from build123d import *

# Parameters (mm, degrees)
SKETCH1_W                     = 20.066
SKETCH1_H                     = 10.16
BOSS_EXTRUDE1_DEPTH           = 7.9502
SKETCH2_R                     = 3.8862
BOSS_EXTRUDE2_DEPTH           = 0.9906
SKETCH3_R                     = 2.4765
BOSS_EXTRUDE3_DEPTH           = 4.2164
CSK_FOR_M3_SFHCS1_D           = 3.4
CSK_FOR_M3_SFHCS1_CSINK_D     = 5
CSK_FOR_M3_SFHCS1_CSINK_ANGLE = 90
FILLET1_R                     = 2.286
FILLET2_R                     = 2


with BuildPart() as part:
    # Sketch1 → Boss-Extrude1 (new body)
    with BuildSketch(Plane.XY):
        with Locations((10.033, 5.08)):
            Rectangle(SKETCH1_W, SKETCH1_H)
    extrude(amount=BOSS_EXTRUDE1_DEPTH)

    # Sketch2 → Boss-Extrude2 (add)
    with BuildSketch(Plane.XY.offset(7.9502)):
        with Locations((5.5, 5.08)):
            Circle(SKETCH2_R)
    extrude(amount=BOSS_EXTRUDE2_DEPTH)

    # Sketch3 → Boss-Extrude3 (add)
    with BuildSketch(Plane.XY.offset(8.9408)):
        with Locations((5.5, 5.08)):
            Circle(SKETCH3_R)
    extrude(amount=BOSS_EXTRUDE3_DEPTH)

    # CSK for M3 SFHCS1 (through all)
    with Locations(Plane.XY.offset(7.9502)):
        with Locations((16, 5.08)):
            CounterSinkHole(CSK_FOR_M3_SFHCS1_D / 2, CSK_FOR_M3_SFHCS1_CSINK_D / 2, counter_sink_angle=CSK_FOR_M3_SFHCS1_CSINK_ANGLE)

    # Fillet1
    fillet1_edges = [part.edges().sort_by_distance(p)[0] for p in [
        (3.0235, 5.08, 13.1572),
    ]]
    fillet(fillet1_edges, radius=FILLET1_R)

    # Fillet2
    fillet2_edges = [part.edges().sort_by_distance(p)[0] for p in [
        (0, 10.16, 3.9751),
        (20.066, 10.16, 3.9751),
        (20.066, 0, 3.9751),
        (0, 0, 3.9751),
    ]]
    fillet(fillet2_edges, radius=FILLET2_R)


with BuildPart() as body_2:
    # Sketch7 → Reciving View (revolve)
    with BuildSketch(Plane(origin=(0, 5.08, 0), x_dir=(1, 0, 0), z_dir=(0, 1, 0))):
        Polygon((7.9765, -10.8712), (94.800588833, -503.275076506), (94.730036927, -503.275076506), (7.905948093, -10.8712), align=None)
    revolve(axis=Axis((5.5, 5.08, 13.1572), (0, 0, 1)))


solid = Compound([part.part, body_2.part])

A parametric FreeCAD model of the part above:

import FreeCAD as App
import Part
import Sketcher
from FreeCAD import Vector
Q = App.Units.Quantity


def edges_at(feature, points):
    """Names of the edges that pass closest to the given points."""
    edges = feature.Shape.Edges
    near = lambda p: min(range(len(edges)), key=lambda i: edges[i].distToShape(Part.Vertex(*p))[0])
    return sorted({f"Edge{near(p) + 1}" for p in points})

doc = App.newDocument("Part")
body = doc.addObject("PartDesign::Body", "Body")

# Sketch on XY plane
sketch1 = body.newObject("Sketcher::SketchObject", "Sketch")
sketch1.AttachmentSupport = (doc.getObject("XY_Plane"), [""])
sketch1.MapMode = "FlatFace"
sketch1.addGeometry([
    Part.LineSegment(Vector(0, 10.16, 0), Vector(0, 0, 0)),
    Part.LineSegment(Vector(0, 0, 0), Vector(20.066, 0, 0)),
    Part.LineSegment(Vector(20.066, 0, 0), Vector(20.066, 10.16, 0)),
    Part.LineSegment(Vector(20.066, 10.16, 0), Vector(0, 10.16, 0)),
], False)
sketch1.addConstraint([
    Sketcher.Constraint("Coincident", 0, 2, 1, 1),
    Sketcher.Constraint("Coincident", 1, 2, 2, 1),
    Sketcher.Constraint("Coincident", 2, 2, 3, 1),
    Sketcher.Constraint("Coincident", 3, 2, 0, 1),
    Sketcher.Constraint("Vertical", 0),
    Sketcher.Constraint("Horizontal", 1),
    Sketcher.Constraint("Vertical", 2),
    Sketcher.Constraint("Horizontal", 3),
    Sketcher.Constraint("Coincident", 0, 2, -1, 1),
    Sketcher.Constraint("DistanceY", 0, 2, 0, 1, Q("0.4 in")),
    Sketcher.Constraint("DistanceX", 1, 1, 1, 2, Q("0.79 in")),
])
pad1 = body.newObject("PartDesign::Pad", "Pad")
pad1.Profile = sketch1
pad1.Length = Q("0.313 in")

# Sketch on XY plane
sketch2 = body.newObject("Sketcher::SketchObject", "Sketch001")
sketch2.AttachmentSupport = (doc.getObject("XY_Plane"), [""])
sketch2.MapMode = "FlatFace"
sketch2.AttachmentOffset = App.Placement(Vector(0, 0, 0.313 * 25.4), App.Rotation())
sketch2.addGeometry(Part.Circle(Vector(5.5, 5.08, 0), Vector(0, 0, 1), 3.8862), False)
sketch2.addConstraint([
    Sketcher.Constraint("Diameter", 0, Q("0.306 in")),
    Sketcher.Constraint("DistanceY", -1, 1, 0, 3, Q("0.2 in")),
    Sketcher.Constraint("DistanceX", -1, 1, 0, 3, Q("5.5 mm")),
])
pad2 = body.newObject("PartDesign::Pad", "Pad001")
pad2.Profile = sketch2
pad2.Length = Q("0.039 in")

# Sketch on XY plane
sketch3 = body.newObject("Sketcher::SketchObject", "Sketch002")
sketch3.AttachmentSupport = (doc.getObject("XY_Plane"), [""])
sketch3.MapMode = "FlatFace"
sketch3.AttachmentOffset = App.Placement(Vector(0, 0, 0.352 * 25.4), App.Rotation())
sketch3.addGeometry(Part.Circle(Vector(5.5, 5.08, 0), Vector(0, 0, 1), 2.4765), False)
sketch3.addConstraint([
    Sketcher.Constraint("Diameter", 0, Q("0.195 in")),
    Sketcher.Constraint("DistanceY", -1, 1, 0, 3, Q("0.2 in")),
    Sketcher.Constraint("DistanceX", -1, 1, 0, 3, Q("5.5 mm")),
])
pad3 = body.newObject("PartDesign::Pad", "Pad002")
pad3.Profile = sketch3
pad3.Length = Q("0.166 in")

# Sketch on XY plane
sketch4 = body.newObject("Sketcher::SketchObject", "Sketch003")
sketch4.AttachmentSupport = (doc.getObject("XY_Plane"), [""])
sketch4.MapMode = "FlatFace"
sketch4.AttachmentOffset = App.Placement(Vector(0, 0, 0.313 * 25.4), App.Rotation())
sketch4.addGeometry(Part.Circle(Vector(16, 5.08, 0), Vector(0, 0, 1), 1.7), False)
sketch4.addConstraint([
    Sketcher.Constraint("DistanceY", -1, 1, 0, 3, Q("0.2 in")),
    Sketcher.Constraint("Diameter", 0, Q("3.4 mm")),
    Sketcher.Constraint("DistanceX", -1, 1, 0, 3, Q("16 mm")),
])
doc.recompute()
hole = body.newObject("PartDesign::Hole", "Hole")
hole.Profile = sketch4
hole.ThreadType = "None"
hole.Diameter = 3.4
hole.DepthType = "ThroughAll"
hole.HoleCutType = "Countersink"
hole.HoleCutDiameter = 5
hole.HoleCutCountersinkAngle = 90
doc.recompute()

fillet = body.newObject("PartDesign::Fillet", "Fillet")
fillet.Base = (hole, edges_at(hole, [(3.023, 5.08, 13.157)]))
fillet.Radius = Q("0.09 in")
doc.recompute()

fillet2 = body.newObject("PartDesign::Fillet", "Fillet001")
fillet2.Base = (fillet, edges_at(fillet, [
    (0, 10.16, 3.975),
    (20.066, 10.16, 3.975),
    (20.066, 0, 3.975),
    (0, 0, 3.975),
]))
fillet2.Radius = 2
body2 = doc.addObject("PartDesign::Body", "Body001")

# Sketch on XZ plane
sketch5 = body2.newObject("Sketcher::SketchObject", "Sketch004")
sketch5.AttachmentSupport = (doc.getObject("XZ_Plane001"), [""])
sketch5.MapMode = "FlatFace"
sketch5.AttachmentOffset = App.Placement(Vector(0, 0, -0.2 * 25.4), App.Rotation())
sketch5.addGeometry([
    Part.LineSegment(Vector(94.800589, 503.275077, 0), Vector(7.9765, 10.8712, 0)),
    Part.LineSegment(Vector(7.9765, 10.8712, 0), Vector(7.905948, 10.8712, 0)),
    Part.LineSegment(Vector(7.905948, 10.8712, 0), Vector(94.730037, 503.275077, 0)),
    Part.LineSegment(Vector(94.730037, 503.275077, 0), Vector(94.800589, 503.275077, 0)),
], False)
sketch5.addGeometry(Part.LineSegment(Vector(5.5, 10.8712, 0), Vector(5.5, 503.275077, 0)), True)  # axis
sketch5.addConstraint([
    Sketcher.Constraint("Coincident", 0, 2, 1, 1),
    Sketcher.Constraint("Coincident", 1, 2, 2, 1),
    Sketcher.Constraint("Coincident", 2, 2, 3, 1),
    Sketcher.Constraint("Coincident", 3, 2, 0, 1),
    Sketcher.Constraint("Horizontal", 1),
    Sketcher.Constraint("Horizontal", 3),
    Sketcher.Constraint("Vertical", 4),
    Sketcher.Constraint("Parallel", 0, 2),
    Sketcher.Constraint("Horizontal", 1, 2, 4, 1),
    Sketcher.Constraint("Horizontal", 3, 2, 4, 2),
    Sketcher.Constraint("Angle", 0, Q("-100 deg")),
    Sketcher.Constraint("DistanceY", -1, 1, 0, 2, Q("0.428 in")),
    Sketcher.Constraint("DistanceX", 4, 1, 0, 2, Q("0.0975 in")),
    Sketcher.Constraint("Distance", 0, Q("500 mm")),
    Sketcher.Constraint("DistanceX", 1, 2, 1, 1, Q("0.070552 mm")),
    Sketcher.Constraint("DistanceX", -1, 1, 0, 2, Q("7.9765 mm")),
])
revolution = body2.newObject("PartDesign::Revolution", "Revolution")
revolution.Profile = sketch5
revolution.ReferenceAxis = (sketch5, ["Axis0"])
revolution.Angle = 360

doc.recompute()
